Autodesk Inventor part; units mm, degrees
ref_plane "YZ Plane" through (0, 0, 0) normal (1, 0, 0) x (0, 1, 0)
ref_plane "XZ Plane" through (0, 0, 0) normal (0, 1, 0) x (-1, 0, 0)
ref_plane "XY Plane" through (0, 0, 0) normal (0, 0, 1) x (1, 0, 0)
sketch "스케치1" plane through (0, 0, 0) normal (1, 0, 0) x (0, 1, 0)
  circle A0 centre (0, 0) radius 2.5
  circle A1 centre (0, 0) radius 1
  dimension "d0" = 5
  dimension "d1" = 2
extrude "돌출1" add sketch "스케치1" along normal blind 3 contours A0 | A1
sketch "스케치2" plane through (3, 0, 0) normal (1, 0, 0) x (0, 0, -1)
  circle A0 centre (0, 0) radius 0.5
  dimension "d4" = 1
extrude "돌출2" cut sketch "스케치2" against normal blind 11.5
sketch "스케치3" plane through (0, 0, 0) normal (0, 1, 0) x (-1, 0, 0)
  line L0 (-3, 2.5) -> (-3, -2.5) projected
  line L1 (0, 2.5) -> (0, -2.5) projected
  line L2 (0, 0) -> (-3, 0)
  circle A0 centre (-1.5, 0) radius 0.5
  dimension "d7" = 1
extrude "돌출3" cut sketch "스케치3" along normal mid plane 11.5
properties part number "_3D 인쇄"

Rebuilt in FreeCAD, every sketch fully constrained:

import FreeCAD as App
import Part
import Sketcher
Q = App.Units.Quantity

doc = App.newDocument("Part")
params = doc.addObject("Spreadsheet::Sheet", "Params")
for row, (alias, value) in enumerate([
    ("sketch1_diameter", "5 mm"),
    ("pad1_length", "3 mm"),
    ("sketch2_diameter", "1 mm"),
    ("pocket1_length", "11.5 mm"),
    ("sketch3_diameter", "1 mm"),
    ("pocket2_length", "11.5 mm"),
], start=1):
    params.set(f"A{row}", alias)
    params.set(f"B{row}", "=" + value)
    params.setAlias(f"B{row}", alias)

body = doc.addObject("PartDesign::Body", "Body")

# Sketch on YZ plane
sketch1 = body.newObject("Sketcher::SketchObject", "Sketch")
sketch1.AttachmentSupport = (doc.getObject("YZ_Plane"), [""])
sketch1.MapMode = "FlatFace"
sketch1.addGeometry(Part.Circle(App.Vector(0, 0, 0), App.Vector(0, 0, 1), 2.5), False)
sketch1.addConstraint(Sketcher.Constraint("Coincident", 0, 3, -1, 1))
sketch1.addConstraint(Sketcher.Constraint("Diameter", 0, Q("5 mm")))
sketch1.setExpression("Constraints[1]", "Params.sketch1_diameter")
pad1 = body.newObject("PartDesign::Pad", "Pad")
pad1.Profile = sketch1
pad1.setExpression("Length", "Params.pad1_length")

# Sketch on YZ plane
sketch2 = body.newObject("Sketcher::SketchObject", "Sketch001")
sketch2.AttachmentSupport = (doc.getObject("YZ_Plane"), [""])
sketch2.MapMode = "FlatFace"
sketch2.AttachmentOffset = App.Placement(App.Vector(0, 0, 3), App.Rotation())
sketch2.addGeometry(Part.Circle(App.Vector(0, 0, 0), App.Vector(0, 0, 1), 0.5), False)
sketch2.addConstraint(Sketcher.Constraint("Coincident", 0, 3, -1, 1))
sketch2.addConstraint(Sketcher.Constraint("Diameter", 0, Q("1 mm")))
sketch2.setExpression("Constraints[1]", "Params.sketch2_diameter")
pocket1 = body.newObject("PartDesign::Pocket", "Pocket")
pocket1.Profile = sketch2
pocket1.setExpression("Length", "Params.pocket1_length")

# Sketch on XZ plane
sketch3 = body.newObject("Sketcher::SketchObject", "Sketch002")
sketch3.AttachmentSupport = (doc.getObject("XZ_Plane"), [""])
sketch3.MapMode = "FlatFace"
sketch3.addGeometry(Part.Circle(App.Vector(1.5, 0, 0), App.Vector(0, 0, 1), 0.5), False)
sketch3.addConstraint(Sketcher.Constraint("PointOnObject", 0, 3, -1))
sketch3.addConstraint(Sketcher.Constraint("Diameter", 0, Q("1 mm")))
sketch3.addConstraint(Sketcher.Constraint("DistanceX", -1, 1, 0, 3, Q("1.5 mm")))
sketch3.setExpression("Constraints[1]", "Params.sketch3_diameter")
pocket2 = body.newObject("PartDesign::Pocket", "Pocket001")
pocket2.Profile = sketch3
pocket2.setExpression("Length", "Params.pocket2_length")
pocket2.Midplane = True

doc.recompute()
